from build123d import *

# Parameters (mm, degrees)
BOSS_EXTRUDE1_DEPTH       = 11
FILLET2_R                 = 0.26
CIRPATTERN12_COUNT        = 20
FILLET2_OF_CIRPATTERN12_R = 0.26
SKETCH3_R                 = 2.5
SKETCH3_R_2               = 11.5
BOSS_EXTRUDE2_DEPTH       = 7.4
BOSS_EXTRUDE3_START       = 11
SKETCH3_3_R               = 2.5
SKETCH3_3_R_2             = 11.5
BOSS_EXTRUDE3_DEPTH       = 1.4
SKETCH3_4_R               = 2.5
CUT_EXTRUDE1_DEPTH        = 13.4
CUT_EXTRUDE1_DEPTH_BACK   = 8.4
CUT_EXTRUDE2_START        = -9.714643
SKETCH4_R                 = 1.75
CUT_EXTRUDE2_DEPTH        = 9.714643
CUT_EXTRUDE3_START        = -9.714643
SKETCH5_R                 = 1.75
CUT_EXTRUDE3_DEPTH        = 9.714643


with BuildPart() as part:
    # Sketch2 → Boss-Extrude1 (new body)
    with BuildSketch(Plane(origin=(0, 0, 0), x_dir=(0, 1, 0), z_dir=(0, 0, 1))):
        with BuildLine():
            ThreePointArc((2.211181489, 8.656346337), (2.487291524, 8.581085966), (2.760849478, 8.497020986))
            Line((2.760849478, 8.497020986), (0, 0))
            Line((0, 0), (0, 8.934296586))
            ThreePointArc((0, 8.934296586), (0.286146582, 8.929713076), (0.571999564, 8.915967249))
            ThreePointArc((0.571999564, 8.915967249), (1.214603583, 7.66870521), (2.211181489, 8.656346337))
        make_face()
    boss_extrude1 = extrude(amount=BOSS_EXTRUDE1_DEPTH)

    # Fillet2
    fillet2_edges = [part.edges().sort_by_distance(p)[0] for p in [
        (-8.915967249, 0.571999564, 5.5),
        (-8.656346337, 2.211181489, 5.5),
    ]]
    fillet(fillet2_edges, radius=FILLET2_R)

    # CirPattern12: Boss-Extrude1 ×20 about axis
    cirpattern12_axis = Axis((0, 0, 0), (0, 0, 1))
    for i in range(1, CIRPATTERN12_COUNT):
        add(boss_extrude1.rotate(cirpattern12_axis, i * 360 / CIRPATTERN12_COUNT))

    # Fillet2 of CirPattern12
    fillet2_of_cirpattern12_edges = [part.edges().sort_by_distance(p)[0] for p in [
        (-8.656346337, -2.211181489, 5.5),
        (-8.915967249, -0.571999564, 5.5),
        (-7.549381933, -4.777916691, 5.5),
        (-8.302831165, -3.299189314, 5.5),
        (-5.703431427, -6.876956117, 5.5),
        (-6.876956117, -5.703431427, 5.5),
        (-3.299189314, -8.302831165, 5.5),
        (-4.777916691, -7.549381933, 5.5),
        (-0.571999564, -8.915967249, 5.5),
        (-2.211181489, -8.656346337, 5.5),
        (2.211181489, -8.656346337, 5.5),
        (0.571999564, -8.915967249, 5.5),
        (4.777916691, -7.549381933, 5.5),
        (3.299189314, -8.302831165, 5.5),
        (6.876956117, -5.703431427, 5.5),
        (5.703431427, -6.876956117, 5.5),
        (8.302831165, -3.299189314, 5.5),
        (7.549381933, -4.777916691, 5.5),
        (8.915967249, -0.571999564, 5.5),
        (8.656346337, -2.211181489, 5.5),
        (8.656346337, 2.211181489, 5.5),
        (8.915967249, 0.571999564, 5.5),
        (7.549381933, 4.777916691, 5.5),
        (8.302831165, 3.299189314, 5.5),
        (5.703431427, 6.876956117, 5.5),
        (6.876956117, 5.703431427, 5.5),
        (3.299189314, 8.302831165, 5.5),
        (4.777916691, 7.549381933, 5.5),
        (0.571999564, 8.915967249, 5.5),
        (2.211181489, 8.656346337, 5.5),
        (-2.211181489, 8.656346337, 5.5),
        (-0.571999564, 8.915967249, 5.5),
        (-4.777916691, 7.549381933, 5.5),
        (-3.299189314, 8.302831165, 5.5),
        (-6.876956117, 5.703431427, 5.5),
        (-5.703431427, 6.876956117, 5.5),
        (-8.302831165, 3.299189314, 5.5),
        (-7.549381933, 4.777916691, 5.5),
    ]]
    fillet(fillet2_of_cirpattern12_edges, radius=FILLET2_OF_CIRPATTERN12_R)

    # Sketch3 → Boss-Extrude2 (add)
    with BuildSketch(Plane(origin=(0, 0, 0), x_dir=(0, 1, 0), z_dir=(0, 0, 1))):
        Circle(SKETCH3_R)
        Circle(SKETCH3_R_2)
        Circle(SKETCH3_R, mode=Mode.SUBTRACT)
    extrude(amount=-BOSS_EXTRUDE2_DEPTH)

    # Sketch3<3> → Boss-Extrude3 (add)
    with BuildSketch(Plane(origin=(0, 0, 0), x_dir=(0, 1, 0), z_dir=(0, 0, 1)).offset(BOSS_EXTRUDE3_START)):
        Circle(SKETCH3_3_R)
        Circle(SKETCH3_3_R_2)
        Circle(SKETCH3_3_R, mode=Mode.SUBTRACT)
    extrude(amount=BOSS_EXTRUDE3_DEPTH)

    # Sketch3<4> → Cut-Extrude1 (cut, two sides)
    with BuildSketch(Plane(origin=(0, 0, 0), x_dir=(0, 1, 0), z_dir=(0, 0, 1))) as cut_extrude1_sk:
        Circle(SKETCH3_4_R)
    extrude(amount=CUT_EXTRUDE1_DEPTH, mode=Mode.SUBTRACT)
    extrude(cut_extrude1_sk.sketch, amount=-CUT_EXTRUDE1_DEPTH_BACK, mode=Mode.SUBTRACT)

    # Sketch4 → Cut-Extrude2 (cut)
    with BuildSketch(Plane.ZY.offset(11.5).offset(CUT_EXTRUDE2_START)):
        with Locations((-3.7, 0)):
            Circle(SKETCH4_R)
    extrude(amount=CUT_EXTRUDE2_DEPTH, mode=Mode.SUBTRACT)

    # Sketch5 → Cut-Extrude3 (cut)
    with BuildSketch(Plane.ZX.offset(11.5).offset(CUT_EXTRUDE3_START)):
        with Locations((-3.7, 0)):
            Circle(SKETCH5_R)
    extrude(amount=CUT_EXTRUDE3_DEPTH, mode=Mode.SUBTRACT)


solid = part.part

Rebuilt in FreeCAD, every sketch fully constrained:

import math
import FreeCAD as App
import Part
import Sketcher

V = App.Vector
Q = App.Units.Quantity


def edges_at(feature, points):
    """Names of the edges that pass closest to the given points."""
    edges = feature.Shape.Edges
    near = lambda p: min(range(len(edges)), key=lambda i: edges[i].distToShape(Part.Vertex(*p))[0])
    return sorted({f"Edge{near(p) + 1}" for p in points})

doc = App.newDocument("Part")
params = doc.addObject("Spreadsheet::Sheet", "Params")
for row, (alias, value) in enumerate([
    ("sketch1_radius", "0.87 mm"),
    ("pad1_length", "11 mm"),
    ("fillet_radius", "0.26 mm"),
    ("fillet2_radius", "0.26 mm"),
    ("sketch2_diameter", "23 mm"),
    ("sketch2_diameter2", "5 mm"),
    ("pad2_length", "7.4 mm"),
    ("sketch3_diameter", "23 mm"),
    ("sketch3_diameter2", "5 mm"),
    ("pad3_length", "1.4 mm"),
    ("sketch4_diameter", "5 mm"),
    ("sketch5_diameter", "3.5 mm"),
    ("pocket2_length", "9.714643 mm"),
    ("sketch6_diameter", "3.5 mm"),
    ("pocket3_length", "9.714643 mm"),
], start=1):
    params.set(f"A{row}", alias)
    params.set(f"B{row}", "=" + value)
    params.setAlias(f"B{row}", alias)

body = doc.addObject("PartDesign::Body", "Body")

# Sketch on XY plane
sketch1 = body.newObject("Sketcher::SketchObject", "Sketch")
sketch1.AttachmentSupport = (doc.getObject("XY_Plane"), [""])
sketch1.MapMode = "FlatFace"
sketch1.addGeometry(Part.ArcOfCircle(Part.Circle(V(0, 0, 0), V(0, 0, 1), 8.934296), math.radians(162), math.radians(165.670752)), False)
sketch1.addGeometry(Part.ArcOfCircle(Part.Circle(V(-8.527994, 1.350702, 0), V(0, 0, 1), 0.87), math.radians(-116.483891), math.radians(98.483891)), False)
sketch1.addGeometry(Part.ArcOfCircle(Part.Circle(V(0, 0, 0), V(0, 0, 1), 8.934297), math.radians(176.329248), math.radians(180)), False)
sketch1.addGeometry(Part.LineSegment(V(-8.934297, 0, 0), V(0, 0, 0)), False)
sketch1.addGeometry(Part.LineSegment(V(0, 0, 0), V(-8.497021, 2.760849, 0)), False)
sketch1.addConstraint(Sketcher.Constraint("Coincident", 0, 2, 1, 2))
sketch1.addConstraint(Sketcher.Constraint("Coincident", 1, 1, 2, 1))
sketch1.addConstraint(Sketcher.Constraint("Coincident", 2, 2, 3, 1))
sketch1.addConstraint(Sketcher.Constraint("Coincident", 3, 2, 4, 1))
sketch1.addConstraint(Sketcher.Constraint("Coincident", 4, 2, 0, 1))
sketch1.addConstraint(Sketcher.Constraint("Horizontal", 3))
sketch1.addConstraint(Sketcher.Constraint("Coincident", 0, 3, -1, 1))
sketch1.addConstraint(Sketcher.Constraint("Coincident", 2, 3, -1, 1))
sketch1.addConstraint(Sketcher.Constraint("Coincident", 3, 2, -1, 1))
sketch1.addConstraint(Sketcher.Constraint("Equal", 0, 2))
sketch1.addConstraint(Sketcher.Constraint("Angle", 4, Q("162 deg")))
sketch1.addConstraint(Sketcher.Constraint("Radius", 1, Q("0.87 mm")))
sketch1.addConstraint(Sketcher.Constraint("DistanceY", -1, 1, 1, 1, Q("0.572 mm")))
sketch1.addConstraint(Sketcher.Constraint("Radius", 0, Q("8.934296 mm")))
sketch1.addConstraint(Sketcher.Constraint("DistanceY", -1, 1, 1, 3, Q("1.350702 mm")))
sketch1.setExpression("Constraints[11]", "Params.sketch1_radius")
pad1 = body.newObject("PartDesign::Pad", "Pad")
pad1.Profile = sketch1
pad1.setExpression("Length", "Params.pad1_length")
doc.recompute()

fillet = body.newObject("PartDesign::Fillet", "Fillet")
fillet.Base = (pad1, edges_at(pad1, [(-8.916, 0.572, 5.5), (-8.656, 2.211, 5.5)]))
fillet.setExpression("Radius", "Params.fillet_radius")
doc.recompute()

polarpattern = body.newObject("PartDesign::PolarPattern", "PolarPattern")
polarpattern.Originals = [pad1]
polarpattern.Axis = (doc.getObject("Z_Axis"), [""])
polarpattern.Angle = 360
polarpattern.Occurrences = 20
body.Tip = polarpattern
doc.recompute()

fillet2 = body.newObject("PartDesign::Fillet", "Fillet001")
fillet2.Base = (polarpattern, edges_at(polarpattern, [
    (-8.656, -2.211, 5.5),
    (-8.916, -0.572, 5.5),
    (-7.549, -4.778, 5.5),
    (-8.303, -3.299, 5.5),
    (-5.703, -6.877, 5.5),
    (-6.877, -5.703, 5.5),
    (-3.299, -8.303, 5.5),
    (-4.778, -7.549, 5.5),
    (-0.572, -8.916, 5.5),
    (-2.211, -8.656, 5.5),
    (2.211, -8.656, 5.5),
    (0.572, -8.916, 5.5),
    (4.778, -7.549, 5.5),
    (3.299, -8.303, 5.5),
    (6.877, -5.703, 5.5),
    (5.703, -6.877, 5.5),
    (8.303, -3.299, 5.5),
    (7.549, -4.778, 5.5),
    (8.916, -0.572, 5.5),
    (8.656, -2.211, 5.5),
    (8.656, 2.211, 5.5),
    (8.916, 0.572, 5.5),
    (7.549, 4.778, 5.5),
    (8.303, 3.299, 5.5),
    (5.703, 6.877, 5.5),
    (6.877, 5.703, 5.5),
    (3.299, 8.303, 5.5),
    (4.778, 7.549, 5.5),
    (0.572, 8.916, 5.5),
    (2.211, 8.656, 5.5),
    (-2.211, 8.656, 5.5),
    (-0.572, 8.916, 5.5),
    (-4.778, 7.549, 5.5),
    (-3.299, 8.303, 5.5),
    (-6.877, 5.703, 5.5),
    (-5.703, 6.877, 5.5),
    (-8.303, 3.299, 5.5),
    (-7.549, 4.778, 5.5),
]))
fillet2.setExpression("Radius", "Params.fillet2_radius")

# Sketch on XY plane
sketch2 = body.newObject("Sketcher::SketchObject", "Sketch001")
sketch2.AttachmentSupport = (doc.getObject("XY_Plane"), [""])
sketch2.MapMode = "FlatFace"
sketch2.addGeometry(Part.Circle(V(0, 0, 0), V(0, 0, 1), 11.5), False)
sketch2.addGeometry(Part.Circle(V(0, 0, 0), V(0, 0, 1), 2.5), False)
sketch2.addConstraint(Sketcher.Constraint("Coincident", 0, 3, -1, 1))
sketch2.addConstraint(Sketcher.Constraint("Coincident", 1, 3, -1, 1))
sketch2.addConstraint(Sketcher.Constraint("Diameter", 0, Q("23 mm")))
sketch2.addConstraint(Sketcher.Constraint("Diameter", 1, Q("5 mm")))
sketch2.setExpression("Constraints[2]", "Params.sketch2_diameter")
sketch2.setExpression("Constraints[3]", "Params.sketch2_diameter2")
pad2 = body.newObject("PartDesign::Pad", "Pad001")
pad2.Profile = sketch2
pad2.setExpression("Length", "Params.pad2_length")
pad2.Reversed = True

# Sketch on XY plane
sketch3 = body.newObject("Sketcher::SketchObject", "Sketch002")
sketch3.AttachmentSupport = (doc.getObject("XY_Plane"), [""])
sketch3.MapMode = "FlatFace"
sketch3.AttachmentOffset = App.Placement(V(0, 0, 11), App.Rotation())
sketch3.addGeometry(Part.Circle(V(0, 0, 0), V(0, 0, 1), 11.5), False)
sketch3.addGeometry(Part.Circle(V(0, 0, 0), V(0, 0, 1), 2.5), False)
sketch3.addConstraint(Sketcher.Constraint("Coincident", 0, 3, -1, 1))
sketch3.addConstraint(Sketcher.Constraint("Coincident", 1, 3, -1, 1))
sketch3.addConstraint(Sketcher.Constraint("Diameter", 0, Q("23 mm")))
sketch3.addConstraint(Sketcher.Constraint("Diameter", 1, Q("5 mm")))
sketch3.setExpression("Constraints[2]", "Params.sketch3_diameter")
sketch3.setExpression("Constraints[3]", "Params.sketch3_diameter2")
pad3 = body.newObject("PartDesign::Pad", "Pad002")
pad3.Profile = sketch3
pad3.setExpression("Length", "Params.pad3_length")

# Sketch on XY plane
sketch4 = body.newObject("Sketcher::SketchObject", "Sketch003")
sketch4.AttachmentSupport = (doc.getObject("XY_Plane"), [""])
sketch4.MapMode = "FlatFace"
sketch4.addGeometry(Part.Circle(V(0, 0, 0), V(0, 0, 1), 2.5), False)
sketch4.addConstraint(Sketcher.Constraint("Coincident", 0, 3, -1, 1))
sketch4.addConstraint(Sketcher.Constraint("Diameter", 0, Q("5 mm")))
sketch4.setExpression("Constraints[1]", "Params.sketch4_diameter")
pocket1 = body.newObject("PartDesign::Pocket", "Pocket")
pocket1.Profile = sketch4
pocket1.Type = "ThroughAll"
pocket1.Midplane = True

# Sketch on YZ plane
sketch5 = body.newObject("Sketcher::SketchObject", "Sketch004")
sketch5.AttachmentSupport = (doc.getObject("YZ_Plane"), [""])
sketch5.MapMode = "FlatFace"
sketch5.AttachmentOffset = App.Placement(V(0, 0, -1.785357), App.Rotation())
sketch5.addGeometry(Part.Circle(V(0, -3.7, 0), V(0, 0, 1), 1.75), False)
sketch5.addConstraint(Sketcher.Constraint("PointOnObject", 0, 3, -2))
sketch5.addConstraint(Sketcher.Constraint("Diameter", 0, Q("3.5 mm")))
sketch5.addConstraint(Sketcher.Constraint("DistanceY", 0, 3, -1, 1, Q("3.7 mm")))
sketch5.setExpression("Constraints[1]", "Params.sketch5_diameter")
pocket2 = body.newObject("PartDesign::Pocket", "Pocket001")
pocket2.Profile = sketch5
pocket2.setExpression("Length", "Params.pocket2_length")

# Sketch on XZ plane
sketch6 = body.newObject("Sketcher::SketchObject", "Sketch005")
sketch6.AttachmentSupport = (doc.getObject("XZ_Plane"), [""])
sketch6.MapMode = "FlatFace"
sketch6.AttachmentOffset = App.Placement(V(0, 0, -1.785357), App.Rotation())
sketch6.addGeometry(Part.Circle(V(0, -3.7, 0), V(0, 0, 1), 1.75), False)
sketch6.addConstraint(Sketcher.Constraint("PointOnObject", 0, 3, -2))
sketch6.addConstraint(Sketcher.Constraint("Diameter", 0, Q("3.5 mm")))
sketch6.addConstraint(Sketcher.Constraint("DistanceY", 0, 3, -1, 1, Q("3.7 mm")))
sketch6.setExpression("Constraints[1]", "Params.sketch6_diameter")
pocket3 = body.newObject("PartDesign::Pocket", "Pocket002")
pocket3.Profile = sketch6
pocket3.setExpression("Length", "Params.pocket3_length")

doc.recompute()
